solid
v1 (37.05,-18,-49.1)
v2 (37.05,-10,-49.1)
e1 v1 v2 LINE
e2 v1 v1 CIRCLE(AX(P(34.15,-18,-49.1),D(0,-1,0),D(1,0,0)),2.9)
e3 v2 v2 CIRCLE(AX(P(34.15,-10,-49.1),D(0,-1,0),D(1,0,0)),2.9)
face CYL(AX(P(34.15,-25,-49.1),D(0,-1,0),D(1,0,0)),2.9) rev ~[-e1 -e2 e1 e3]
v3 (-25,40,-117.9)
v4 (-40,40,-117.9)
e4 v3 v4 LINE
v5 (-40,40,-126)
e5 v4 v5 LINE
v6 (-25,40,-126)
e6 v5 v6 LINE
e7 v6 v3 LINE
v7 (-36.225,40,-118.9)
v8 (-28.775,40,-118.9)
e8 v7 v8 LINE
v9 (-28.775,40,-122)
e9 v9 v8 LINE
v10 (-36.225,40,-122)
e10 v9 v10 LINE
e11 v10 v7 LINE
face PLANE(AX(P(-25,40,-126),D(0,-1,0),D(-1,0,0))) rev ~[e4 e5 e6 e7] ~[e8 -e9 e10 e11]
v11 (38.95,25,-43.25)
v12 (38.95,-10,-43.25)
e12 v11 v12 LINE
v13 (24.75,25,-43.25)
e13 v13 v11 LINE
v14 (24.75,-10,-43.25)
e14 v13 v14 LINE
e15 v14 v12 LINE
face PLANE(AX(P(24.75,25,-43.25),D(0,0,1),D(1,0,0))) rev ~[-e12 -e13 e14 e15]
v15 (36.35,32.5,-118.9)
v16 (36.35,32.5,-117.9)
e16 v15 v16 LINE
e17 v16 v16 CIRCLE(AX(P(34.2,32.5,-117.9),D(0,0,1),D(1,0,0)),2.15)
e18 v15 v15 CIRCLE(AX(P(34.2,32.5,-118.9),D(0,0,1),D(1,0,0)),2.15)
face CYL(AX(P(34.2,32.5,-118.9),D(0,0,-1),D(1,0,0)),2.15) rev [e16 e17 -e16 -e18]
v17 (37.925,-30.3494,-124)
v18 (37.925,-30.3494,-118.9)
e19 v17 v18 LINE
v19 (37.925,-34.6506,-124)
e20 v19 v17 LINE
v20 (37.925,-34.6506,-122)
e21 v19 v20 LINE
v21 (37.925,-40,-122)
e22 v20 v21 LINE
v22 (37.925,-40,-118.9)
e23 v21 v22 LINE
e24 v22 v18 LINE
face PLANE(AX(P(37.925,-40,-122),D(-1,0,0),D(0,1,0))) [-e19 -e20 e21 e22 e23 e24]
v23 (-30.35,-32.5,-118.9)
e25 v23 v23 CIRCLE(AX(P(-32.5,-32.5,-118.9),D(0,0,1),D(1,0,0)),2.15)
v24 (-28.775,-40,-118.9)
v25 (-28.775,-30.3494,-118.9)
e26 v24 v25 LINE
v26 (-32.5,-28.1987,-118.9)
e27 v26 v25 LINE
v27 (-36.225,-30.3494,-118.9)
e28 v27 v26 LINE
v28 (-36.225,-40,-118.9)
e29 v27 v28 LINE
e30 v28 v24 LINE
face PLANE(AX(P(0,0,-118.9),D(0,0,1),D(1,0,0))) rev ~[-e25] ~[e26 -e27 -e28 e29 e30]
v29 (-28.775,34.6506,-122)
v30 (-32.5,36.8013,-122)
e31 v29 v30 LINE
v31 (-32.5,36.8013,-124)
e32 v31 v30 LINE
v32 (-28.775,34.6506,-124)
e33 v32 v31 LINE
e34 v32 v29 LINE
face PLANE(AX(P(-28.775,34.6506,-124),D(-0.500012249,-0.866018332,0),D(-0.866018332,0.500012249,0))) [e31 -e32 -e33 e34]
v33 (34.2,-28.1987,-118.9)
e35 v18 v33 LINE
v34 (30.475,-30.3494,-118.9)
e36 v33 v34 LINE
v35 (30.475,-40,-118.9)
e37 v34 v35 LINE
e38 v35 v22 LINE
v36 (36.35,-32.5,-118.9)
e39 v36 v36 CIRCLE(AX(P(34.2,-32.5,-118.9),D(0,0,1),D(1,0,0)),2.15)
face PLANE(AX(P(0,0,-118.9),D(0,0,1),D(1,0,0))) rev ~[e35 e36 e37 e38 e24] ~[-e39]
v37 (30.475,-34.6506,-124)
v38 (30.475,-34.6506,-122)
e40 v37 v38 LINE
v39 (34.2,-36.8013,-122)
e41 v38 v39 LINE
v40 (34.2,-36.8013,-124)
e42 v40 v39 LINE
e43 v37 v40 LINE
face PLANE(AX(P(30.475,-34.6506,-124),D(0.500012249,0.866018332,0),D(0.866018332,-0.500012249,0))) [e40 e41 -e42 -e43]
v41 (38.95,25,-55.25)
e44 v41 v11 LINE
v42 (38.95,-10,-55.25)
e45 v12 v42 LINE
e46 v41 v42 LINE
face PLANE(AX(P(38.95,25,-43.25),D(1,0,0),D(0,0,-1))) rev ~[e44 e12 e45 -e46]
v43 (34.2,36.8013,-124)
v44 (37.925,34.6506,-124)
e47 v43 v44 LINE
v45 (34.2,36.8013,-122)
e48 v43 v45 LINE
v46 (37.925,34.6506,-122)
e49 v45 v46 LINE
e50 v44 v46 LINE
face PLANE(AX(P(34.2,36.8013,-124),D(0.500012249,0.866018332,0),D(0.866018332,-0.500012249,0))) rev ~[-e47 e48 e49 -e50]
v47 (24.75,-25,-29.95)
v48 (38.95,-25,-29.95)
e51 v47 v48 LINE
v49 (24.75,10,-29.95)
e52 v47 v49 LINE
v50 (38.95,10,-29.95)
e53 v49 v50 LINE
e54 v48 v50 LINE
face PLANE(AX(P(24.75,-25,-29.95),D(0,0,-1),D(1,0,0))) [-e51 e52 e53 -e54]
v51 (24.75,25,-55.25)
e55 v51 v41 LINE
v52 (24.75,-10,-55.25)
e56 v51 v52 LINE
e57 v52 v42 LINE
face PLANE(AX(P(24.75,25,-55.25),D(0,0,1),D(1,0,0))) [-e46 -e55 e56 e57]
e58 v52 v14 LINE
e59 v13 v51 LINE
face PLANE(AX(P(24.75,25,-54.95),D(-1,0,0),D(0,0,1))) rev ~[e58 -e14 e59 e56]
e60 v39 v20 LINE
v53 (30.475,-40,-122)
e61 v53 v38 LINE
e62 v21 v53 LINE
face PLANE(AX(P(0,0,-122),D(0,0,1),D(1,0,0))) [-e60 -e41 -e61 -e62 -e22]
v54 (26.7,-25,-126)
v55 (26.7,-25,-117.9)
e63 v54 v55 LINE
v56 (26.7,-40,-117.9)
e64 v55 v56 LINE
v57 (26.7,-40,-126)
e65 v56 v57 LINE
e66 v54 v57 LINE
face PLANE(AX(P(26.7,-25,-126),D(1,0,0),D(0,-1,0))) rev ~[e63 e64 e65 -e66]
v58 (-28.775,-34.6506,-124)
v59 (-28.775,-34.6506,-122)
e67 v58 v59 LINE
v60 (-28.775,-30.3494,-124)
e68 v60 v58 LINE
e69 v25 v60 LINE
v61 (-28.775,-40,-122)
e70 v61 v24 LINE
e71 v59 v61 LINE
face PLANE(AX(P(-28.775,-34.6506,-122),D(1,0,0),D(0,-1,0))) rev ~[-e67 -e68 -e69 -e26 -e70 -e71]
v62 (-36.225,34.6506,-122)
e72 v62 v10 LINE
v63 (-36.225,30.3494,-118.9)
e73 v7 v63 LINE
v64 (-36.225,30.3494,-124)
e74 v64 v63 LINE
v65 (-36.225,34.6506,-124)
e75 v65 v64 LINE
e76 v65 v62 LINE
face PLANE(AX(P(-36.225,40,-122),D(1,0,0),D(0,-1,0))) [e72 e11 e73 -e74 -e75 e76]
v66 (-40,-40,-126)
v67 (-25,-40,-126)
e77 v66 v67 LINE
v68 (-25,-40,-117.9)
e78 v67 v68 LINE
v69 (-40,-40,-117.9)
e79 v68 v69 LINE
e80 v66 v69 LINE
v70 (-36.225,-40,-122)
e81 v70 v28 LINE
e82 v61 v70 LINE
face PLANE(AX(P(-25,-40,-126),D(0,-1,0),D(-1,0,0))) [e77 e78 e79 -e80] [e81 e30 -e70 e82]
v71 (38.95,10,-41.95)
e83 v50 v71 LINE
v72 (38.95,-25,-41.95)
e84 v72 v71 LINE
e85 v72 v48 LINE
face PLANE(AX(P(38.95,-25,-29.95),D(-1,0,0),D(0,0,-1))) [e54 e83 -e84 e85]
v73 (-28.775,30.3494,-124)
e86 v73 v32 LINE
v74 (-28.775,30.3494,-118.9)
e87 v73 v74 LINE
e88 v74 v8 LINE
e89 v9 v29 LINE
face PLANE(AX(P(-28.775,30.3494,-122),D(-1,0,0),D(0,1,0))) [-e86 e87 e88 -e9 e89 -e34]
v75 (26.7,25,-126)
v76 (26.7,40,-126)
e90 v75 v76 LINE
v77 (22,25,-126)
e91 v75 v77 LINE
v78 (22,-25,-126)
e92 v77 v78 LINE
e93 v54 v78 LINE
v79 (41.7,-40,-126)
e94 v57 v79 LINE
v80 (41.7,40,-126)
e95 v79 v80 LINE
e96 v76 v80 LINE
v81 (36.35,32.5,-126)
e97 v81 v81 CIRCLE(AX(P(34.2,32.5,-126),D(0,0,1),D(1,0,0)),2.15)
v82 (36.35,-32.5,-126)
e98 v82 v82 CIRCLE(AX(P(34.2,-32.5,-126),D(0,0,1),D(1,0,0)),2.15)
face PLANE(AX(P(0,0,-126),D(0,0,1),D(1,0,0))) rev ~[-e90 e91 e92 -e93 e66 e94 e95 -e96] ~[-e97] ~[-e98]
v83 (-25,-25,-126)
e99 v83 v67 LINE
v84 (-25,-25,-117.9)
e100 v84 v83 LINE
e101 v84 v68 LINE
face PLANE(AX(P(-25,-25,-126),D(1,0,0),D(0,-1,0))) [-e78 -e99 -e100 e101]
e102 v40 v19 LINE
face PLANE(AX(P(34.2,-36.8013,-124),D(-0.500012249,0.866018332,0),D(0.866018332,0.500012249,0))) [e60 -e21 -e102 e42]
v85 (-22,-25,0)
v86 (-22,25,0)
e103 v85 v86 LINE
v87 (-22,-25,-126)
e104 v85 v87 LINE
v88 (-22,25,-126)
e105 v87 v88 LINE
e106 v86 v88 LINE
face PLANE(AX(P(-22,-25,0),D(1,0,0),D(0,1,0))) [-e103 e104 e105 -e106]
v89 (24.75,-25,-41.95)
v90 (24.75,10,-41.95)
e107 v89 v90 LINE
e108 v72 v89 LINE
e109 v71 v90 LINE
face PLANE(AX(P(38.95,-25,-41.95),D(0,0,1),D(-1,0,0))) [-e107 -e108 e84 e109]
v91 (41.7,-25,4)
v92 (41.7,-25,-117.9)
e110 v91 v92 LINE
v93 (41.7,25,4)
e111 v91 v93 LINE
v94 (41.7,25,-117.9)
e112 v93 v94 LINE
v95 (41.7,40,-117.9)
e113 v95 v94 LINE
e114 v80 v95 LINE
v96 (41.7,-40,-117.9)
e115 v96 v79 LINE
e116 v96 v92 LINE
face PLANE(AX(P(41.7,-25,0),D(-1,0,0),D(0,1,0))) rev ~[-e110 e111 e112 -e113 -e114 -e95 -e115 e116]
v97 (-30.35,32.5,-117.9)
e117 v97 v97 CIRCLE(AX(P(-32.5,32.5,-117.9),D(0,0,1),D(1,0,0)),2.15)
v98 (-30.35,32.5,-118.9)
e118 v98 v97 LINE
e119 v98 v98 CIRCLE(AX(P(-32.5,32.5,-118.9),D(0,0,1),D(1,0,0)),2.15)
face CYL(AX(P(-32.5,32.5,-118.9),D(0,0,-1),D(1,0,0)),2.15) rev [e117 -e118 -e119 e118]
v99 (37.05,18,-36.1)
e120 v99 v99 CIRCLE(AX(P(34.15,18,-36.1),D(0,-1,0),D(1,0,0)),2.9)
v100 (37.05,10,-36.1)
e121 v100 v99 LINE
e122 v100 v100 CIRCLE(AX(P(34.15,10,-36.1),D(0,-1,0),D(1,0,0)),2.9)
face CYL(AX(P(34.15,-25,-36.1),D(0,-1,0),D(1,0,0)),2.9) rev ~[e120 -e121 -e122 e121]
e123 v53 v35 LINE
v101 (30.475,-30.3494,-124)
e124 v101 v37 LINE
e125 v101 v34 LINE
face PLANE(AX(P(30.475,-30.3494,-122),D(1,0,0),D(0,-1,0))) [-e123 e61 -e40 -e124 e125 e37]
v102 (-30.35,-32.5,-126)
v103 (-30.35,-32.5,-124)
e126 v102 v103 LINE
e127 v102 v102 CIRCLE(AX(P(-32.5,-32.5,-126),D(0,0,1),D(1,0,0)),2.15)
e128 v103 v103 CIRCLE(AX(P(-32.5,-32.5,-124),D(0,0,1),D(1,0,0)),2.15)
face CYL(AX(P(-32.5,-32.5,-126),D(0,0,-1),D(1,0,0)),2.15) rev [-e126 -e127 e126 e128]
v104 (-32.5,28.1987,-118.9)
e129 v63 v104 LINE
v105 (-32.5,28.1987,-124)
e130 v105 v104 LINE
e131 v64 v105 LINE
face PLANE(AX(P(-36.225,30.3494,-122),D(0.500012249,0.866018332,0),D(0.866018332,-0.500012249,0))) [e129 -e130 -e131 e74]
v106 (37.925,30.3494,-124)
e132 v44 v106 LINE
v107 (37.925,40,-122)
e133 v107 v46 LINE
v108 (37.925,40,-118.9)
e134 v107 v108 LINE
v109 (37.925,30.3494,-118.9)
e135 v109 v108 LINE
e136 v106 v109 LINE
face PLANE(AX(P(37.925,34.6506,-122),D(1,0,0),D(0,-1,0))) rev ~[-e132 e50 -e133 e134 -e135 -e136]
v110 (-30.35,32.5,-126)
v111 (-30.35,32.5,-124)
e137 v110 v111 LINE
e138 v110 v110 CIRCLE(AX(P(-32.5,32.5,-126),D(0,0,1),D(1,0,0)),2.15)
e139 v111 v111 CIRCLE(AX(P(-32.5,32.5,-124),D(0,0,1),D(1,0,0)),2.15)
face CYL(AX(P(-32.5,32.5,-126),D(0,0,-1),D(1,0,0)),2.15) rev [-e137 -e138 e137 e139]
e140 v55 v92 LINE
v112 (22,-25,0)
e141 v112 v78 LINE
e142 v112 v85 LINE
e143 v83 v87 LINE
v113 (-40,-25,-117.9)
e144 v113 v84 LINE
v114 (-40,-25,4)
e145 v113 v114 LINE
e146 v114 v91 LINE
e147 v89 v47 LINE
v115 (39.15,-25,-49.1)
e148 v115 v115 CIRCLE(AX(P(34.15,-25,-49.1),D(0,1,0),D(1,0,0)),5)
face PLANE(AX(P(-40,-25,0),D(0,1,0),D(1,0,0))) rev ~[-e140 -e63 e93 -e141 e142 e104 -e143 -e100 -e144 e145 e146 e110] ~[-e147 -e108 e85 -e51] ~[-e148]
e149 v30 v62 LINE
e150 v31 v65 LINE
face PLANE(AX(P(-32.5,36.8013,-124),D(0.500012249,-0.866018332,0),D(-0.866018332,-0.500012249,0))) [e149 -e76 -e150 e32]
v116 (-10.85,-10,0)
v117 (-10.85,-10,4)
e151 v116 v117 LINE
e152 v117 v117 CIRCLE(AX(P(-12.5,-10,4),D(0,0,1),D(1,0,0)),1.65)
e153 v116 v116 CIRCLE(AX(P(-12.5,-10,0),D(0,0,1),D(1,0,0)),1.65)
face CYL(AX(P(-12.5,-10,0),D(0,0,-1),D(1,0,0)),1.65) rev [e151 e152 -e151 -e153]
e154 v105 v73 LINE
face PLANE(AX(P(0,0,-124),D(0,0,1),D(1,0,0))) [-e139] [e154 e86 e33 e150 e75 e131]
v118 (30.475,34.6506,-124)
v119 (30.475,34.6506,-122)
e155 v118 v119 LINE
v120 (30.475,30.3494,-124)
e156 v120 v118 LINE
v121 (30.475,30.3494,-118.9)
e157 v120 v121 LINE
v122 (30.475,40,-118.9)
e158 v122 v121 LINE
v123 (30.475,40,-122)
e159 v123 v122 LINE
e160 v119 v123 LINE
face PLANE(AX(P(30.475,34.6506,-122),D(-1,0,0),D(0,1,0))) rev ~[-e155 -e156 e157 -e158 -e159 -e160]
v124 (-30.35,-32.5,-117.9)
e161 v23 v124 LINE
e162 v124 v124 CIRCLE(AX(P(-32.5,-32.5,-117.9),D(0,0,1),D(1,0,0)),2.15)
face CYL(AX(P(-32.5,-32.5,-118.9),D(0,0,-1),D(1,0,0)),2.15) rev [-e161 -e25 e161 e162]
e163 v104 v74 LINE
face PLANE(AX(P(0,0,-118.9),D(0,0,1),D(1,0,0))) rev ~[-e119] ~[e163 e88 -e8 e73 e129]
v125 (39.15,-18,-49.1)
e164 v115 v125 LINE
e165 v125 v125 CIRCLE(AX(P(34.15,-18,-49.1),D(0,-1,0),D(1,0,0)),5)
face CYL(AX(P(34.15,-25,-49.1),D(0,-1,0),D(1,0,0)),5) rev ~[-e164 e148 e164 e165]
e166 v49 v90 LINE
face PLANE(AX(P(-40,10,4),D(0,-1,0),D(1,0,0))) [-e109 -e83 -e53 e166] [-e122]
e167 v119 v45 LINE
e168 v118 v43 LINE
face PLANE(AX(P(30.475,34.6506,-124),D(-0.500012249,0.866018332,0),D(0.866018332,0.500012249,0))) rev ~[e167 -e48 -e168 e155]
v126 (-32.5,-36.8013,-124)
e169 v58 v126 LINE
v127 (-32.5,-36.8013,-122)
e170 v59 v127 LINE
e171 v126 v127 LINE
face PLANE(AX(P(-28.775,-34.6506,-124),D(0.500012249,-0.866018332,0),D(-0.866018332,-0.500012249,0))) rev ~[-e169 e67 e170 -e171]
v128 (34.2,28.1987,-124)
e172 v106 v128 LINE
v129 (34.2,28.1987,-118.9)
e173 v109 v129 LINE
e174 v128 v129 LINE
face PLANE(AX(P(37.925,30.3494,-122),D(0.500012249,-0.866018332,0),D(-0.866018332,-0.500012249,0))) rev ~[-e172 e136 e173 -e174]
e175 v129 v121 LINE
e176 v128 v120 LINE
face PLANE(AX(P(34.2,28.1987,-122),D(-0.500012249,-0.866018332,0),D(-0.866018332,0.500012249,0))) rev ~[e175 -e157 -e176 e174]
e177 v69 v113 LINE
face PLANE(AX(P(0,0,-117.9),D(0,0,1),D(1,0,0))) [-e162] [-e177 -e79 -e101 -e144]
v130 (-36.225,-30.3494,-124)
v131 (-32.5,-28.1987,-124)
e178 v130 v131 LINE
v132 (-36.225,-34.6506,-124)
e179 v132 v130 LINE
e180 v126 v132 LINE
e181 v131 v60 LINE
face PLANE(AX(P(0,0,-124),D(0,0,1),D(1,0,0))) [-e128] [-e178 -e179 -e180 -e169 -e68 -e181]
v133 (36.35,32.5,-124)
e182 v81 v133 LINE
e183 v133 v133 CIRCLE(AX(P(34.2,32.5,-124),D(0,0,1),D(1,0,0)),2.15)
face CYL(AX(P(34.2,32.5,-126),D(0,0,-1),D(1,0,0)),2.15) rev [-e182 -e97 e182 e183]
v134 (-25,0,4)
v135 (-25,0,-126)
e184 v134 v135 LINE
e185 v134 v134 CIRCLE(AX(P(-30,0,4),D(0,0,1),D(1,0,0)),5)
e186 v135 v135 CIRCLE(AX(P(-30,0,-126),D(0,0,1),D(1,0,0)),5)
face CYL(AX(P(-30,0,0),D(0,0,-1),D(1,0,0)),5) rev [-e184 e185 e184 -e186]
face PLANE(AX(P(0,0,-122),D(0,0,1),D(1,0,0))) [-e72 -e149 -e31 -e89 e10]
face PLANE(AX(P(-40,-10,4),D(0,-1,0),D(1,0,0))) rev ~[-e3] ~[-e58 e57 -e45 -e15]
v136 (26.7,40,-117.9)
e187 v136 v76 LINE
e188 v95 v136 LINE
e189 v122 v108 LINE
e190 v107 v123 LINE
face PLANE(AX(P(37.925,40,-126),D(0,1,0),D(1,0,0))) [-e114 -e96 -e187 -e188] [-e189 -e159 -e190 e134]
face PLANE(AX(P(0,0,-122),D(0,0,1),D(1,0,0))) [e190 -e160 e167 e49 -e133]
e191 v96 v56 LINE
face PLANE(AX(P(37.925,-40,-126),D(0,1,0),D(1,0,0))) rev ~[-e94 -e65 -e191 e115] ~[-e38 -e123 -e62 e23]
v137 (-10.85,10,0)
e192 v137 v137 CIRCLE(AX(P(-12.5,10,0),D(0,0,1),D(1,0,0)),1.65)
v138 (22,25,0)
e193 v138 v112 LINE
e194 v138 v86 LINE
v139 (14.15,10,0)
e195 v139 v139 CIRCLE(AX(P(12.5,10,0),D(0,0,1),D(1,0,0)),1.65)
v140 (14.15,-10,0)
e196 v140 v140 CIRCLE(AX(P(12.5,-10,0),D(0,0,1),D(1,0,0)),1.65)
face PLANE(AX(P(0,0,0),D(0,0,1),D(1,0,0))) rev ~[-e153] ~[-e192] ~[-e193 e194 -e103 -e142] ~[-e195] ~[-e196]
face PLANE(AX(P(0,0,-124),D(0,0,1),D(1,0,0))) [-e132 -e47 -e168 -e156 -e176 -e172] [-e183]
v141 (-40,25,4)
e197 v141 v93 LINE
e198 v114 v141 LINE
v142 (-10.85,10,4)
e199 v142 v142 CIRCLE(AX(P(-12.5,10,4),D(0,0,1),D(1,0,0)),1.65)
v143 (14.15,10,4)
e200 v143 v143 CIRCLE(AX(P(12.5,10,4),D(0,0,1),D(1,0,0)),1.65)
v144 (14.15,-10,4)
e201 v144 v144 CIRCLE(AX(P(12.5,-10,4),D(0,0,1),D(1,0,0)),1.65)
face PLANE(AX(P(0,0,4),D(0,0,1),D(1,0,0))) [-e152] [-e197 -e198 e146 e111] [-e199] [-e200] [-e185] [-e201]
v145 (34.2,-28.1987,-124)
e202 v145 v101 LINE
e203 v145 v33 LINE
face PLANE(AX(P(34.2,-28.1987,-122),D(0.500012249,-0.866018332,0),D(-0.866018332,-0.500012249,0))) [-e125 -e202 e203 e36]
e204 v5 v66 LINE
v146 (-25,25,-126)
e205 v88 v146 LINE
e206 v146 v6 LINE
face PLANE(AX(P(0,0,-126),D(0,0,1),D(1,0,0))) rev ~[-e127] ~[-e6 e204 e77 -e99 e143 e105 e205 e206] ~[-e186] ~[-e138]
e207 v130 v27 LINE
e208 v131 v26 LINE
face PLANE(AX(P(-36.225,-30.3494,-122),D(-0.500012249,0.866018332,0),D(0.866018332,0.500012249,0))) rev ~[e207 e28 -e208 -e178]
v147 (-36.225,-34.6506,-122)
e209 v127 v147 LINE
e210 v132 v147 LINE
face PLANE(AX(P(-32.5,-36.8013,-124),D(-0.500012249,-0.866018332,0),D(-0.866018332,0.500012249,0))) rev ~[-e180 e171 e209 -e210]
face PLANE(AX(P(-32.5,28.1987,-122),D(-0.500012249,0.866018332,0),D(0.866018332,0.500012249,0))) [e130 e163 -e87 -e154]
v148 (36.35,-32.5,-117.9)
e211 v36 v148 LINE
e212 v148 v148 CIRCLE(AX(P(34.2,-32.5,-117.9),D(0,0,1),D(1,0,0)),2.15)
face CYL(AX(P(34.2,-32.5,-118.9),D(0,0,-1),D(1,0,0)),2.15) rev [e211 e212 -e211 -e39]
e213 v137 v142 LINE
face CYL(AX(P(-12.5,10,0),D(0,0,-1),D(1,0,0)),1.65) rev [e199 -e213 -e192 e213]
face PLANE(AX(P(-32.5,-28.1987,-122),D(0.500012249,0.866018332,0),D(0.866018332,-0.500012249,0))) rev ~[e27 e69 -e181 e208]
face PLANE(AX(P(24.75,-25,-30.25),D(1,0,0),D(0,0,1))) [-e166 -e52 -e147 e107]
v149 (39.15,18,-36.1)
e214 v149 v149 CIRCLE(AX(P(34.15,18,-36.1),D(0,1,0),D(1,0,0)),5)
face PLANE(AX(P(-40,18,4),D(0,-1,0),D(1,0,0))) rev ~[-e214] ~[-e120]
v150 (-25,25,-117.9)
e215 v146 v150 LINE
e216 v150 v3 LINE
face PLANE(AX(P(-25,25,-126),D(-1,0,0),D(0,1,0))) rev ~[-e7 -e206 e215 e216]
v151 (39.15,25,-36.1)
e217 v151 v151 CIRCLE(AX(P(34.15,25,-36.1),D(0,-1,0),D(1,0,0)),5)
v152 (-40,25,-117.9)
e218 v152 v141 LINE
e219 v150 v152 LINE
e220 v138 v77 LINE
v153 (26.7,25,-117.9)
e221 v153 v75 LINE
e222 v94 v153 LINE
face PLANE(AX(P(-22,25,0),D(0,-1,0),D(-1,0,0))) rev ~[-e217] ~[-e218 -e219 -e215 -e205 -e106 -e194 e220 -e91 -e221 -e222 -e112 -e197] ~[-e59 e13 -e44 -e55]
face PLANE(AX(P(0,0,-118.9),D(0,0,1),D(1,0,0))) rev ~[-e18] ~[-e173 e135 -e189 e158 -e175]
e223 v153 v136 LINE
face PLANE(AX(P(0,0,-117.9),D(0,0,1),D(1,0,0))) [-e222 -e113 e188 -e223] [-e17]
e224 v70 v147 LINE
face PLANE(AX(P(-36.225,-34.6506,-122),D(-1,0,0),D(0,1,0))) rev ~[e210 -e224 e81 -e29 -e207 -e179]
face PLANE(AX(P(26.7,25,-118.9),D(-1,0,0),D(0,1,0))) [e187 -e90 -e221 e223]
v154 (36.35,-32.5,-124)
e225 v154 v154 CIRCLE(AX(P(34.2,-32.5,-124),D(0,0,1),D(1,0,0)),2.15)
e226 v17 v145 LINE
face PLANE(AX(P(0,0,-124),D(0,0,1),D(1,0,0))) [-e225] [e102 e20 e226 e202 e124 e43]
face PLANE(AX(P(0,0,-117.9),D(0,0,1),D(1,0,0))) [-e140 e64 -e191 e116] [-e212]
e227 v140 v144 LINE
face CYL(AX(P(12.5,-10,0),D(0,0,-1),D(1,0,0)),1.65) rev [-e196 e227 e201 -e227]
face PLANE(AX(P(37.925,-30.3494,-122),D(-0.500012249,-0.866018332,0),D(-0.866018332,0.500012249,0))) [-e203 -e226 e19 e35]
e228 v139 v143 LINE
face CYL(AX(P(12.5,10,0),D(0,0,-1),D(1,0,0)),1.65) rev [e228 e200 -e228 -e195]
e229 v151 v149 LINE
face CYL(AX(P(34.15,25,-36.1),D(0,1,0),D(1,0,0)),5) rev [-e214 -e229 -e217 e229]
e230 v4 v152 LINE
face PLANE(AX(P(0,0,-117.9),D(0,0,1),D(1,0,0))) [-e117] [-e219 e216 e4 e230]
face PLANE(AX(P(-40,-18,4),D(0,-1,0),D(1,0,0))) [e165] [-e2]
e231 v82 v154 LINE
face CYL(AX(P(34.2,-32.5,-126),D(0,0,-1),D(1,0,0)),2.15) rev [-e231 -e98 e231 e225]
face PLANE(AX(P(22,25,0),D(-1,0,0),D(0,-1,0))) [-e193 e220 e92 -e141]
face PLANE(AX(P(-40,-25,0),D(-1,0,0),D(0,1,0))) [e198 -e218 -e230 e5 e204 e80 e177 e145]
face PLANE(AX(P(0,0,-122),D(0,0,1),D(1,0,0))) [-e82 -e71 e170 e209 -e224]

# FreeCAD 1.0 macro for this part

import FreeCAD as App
import Part
import Sketcher
from FreeCAD import Vector
Q = App.Units.Quantity


def add_polygon(sketch, points):
    """Adds a closed chain of lines whose ends are joined by coincident constraints."""
    first, n = sketch.GeometryCount, len(points)
    for a, b in zip(points, points[1:] + points[:1]):
        sketch.addGeometry(Part.LineSegment(App.Vector(*a, 0), App.Vector(*b, 0)), False)
    for i in range(n):
        sketch.addConstraint(Sketcher.Constraint("Coincident", first + i, 2, first + (i + 1) % n, 1))

doc = App.newDocument("Part")
body = doc.addObject("PartDesign::Body", "Body")

# Sketch on XY plane
sketch1 = body.newObject("Sketcher::SketchObject", "Sketch")
sketch1.AttachmentSupport = (doc.getObject("XY_Plane"), [""])
sketch1.MapMode = "FlatFace"
add_polygon(sketch1, [(-40, 25), (-40, -25), (41.7, -25), (41.7, 25)])  # lines 0-3
sketch1.addGeometry(Part.Circle(Vector(-30, 0, 0), Vector(0, 0, 1), 5), False)  # 4
sketch1.addGeometry(Part.Circle(Vector(12.5, 10, 0), Vector(0, 0, 1), 1.65), False)  # 5
sketch1.addGeometry(Part.Circle(Vector(-12.5, -10, 0), Vector(0, 0, 1), 1.65), False)  # 6
sketch1.addGeometry(Part.Circle(Vector(12.5, -10, 0), Vector(0, 0, 1), 1.65), False)  # 7
sketch1.addGeometry(Part.Circle(Vector(-12.5, 10, 0), Vector(0, 0, 1), 1.65), False)  # 8
sketch1.addConstraint(Sketcher.Constraint("Vertical", 0))
sketch1.addConstraint(Sketcher.Constraint("Horizontal", 1))
sketch1.addConstraint(Sketcher.Constraint("Vertical", 2))
sketch1.addConstraint(Sketcher.Constraint("Horizontal", 3))
sketch1.addConstraint(Sketcher.Constraint("Equal", 5, 6))
sketch1.addConstraint(Sketcher.Constraint("Equal", 6, 7))
sketch1.addConstraint(Sketcher.Constraint("Equal", 7, 8))
sketch1.addConstraint(Sketcher.Constraint("Symmetric", 5, 3, 6, 3, -1, 1))
sketch1.addConstraint(Sketcher.Constraint("Symmetric", 7, 3, 8, 3, -1, 1))
sketch1.addConstraint(Sketcher.Constraint("Symmetric", 6, 3, 7, 3, -2))
sketch1.addConstraint(Sketcher.Constraint("PointOnObject", 4, 3, -1))
sketch1.addConstraint(Sketcher.Constraint("Diameter", 4, Q("10 mm")))
sketch1.addConstraint(Sketcher.Constraint("Diameter", 5, Q("3.3 mm")))
sketch1.addConstraint(Sketcher.Constraint("DistanceY", 0, 2, 0, 1, Q("50 mm")))
sketch1.addConstraint(Sketcher.Constraint("DistanceX", 4, 3, -1, 1, Q("30 mm")))
sketch1.addConstraint(Sketcher.Constraint("DistanceY", -1, 1, 5, 3, Q("10 mm")))
sketch1.addConstraint(Sketcher.Constraint("DistanceX", 0, 2, 4, 3, Q("10 mm")))
sketch1.addConstraint(Sketcher.Constraint("DistanceX", -1, 1, 5, 3, Q("12.5 mm")))
sketch1.addConstraint(Sketcher.Constraint("DistanceX", 1, 1, 1, 2, Q("81.7 mm")))
sketch1.addConstraint(Sketcher.Constraint("DistanceY", 0, 2, -1, 1, Q("25 mm")))
pad1 = body.newObject("PartDesign::Pad", "Pad")
pad1.Profile = sketch1
pad1.Length = 4

# Sketch on XY plane
sketch2 = body.newObject("Sketcher::SketchObject", "Sketch001")
sketch2.AttachmentSupport = (doc.getObject("XY_Plane"), [""])
sketch2.MapMode = "FlatFace"
add_polygon(sketch2, [(-22, 25), (-40, 25), (-40, -25), (-22, -25)])  # lines 0-3
sketch2.addGeometry(Part.Circle(Vector(-30, 0, 0), Vector(0, 0, 1), 5), False)  # 4
add_polygon(sketch2, [(41.7, 25), (22, 25), (22, -25), (41.7, -25)])  # lines 5-8
sketch2.addConstraint(Sketcher.Constraint("Horizontal", 0))
sketch2.addConstraint(Sketcher.Constraint("Vertical", 1))
sketch2.addConstraint(Sketcher.Constraint("Horizontal", 2))
sketch2.addConstraint(Sketcher.Constraint("Vertical", 3))
sketch2.addConstraint(Sketcher.Constraint("Horizontal", 5))
sketch2.addConstraint(Sketcher.Constraint("Vertical", 6))
sketch2.addConstraint(Sketcher.Constraint("Horizontal", 7))
sketch2.addConstraint(Sketcher.Constraint("Vertical", 8))
sketch2.addConstraint(Sketcher.Constraint("Symmetric", 2, 2, 5, 2, -1, 1))
sketch2.addConstraint(Sketcher.Constraint("PointOnObject", 4, 3, -1))
sketch2.addConstraint(Sketcher.Constraint("Horizontal", 3, 2, 5, 2))
sketch2.addConstraint(Sketcher.Constraint("Horizontal", 2, 2, 6, 2))
sketch2.addConstraint(Sketcher.Constraint("Diameter", 4, Q("10 mm")))
sketch2.addConstraint(Sketcher.Constraint("DistanceY", 1, 2, 1, 1, Q("50 mm")))
sketch2.addConstraint(Sketcher.Constraint("DistanceX", 4, 3, -1, 1, Q("30 mm")))
sketch2.addConstraint(Sketcher.Constraint("DistanceX", 0, 2, 4, 3, Q("10 mm")))
sketch2.addConstraint(Sketcher.Constraint("DistanceX", 0, 2, 0, 1, Q("18 mm")))
sketch2.addConstraint(Sketcher.Constraint("DistanceX", 5, 2, 5, 1, Q("19.7 mm")))
pad2 = body.newObject("PartDesign::Pad", "Pad001")
pad2.Profile = sketch2
pad2.Length = 126
pad2.Reversed = True

# Sketch on XZ plane
sketch3 = body.newObject("Sketcher::SketchObject", "Sketch002")
sketch3.AttachmentSupport = (doc.getObject("XZ_Plane"), [""])
sketch3.MapMode = "FlatFace"
sketch3.AttachmentOffset = App.Placement(Vector(0, 0, 25), App.Rotation())
sketch3.addGeometry(Part.Circle(Vector(34.15, -49.1, 0), Vector(0, 0, 1), 2.9), False)
sketch3.addGeometry(Part.Circle(Vector(34.15, -36.1, 0), Vector(0, 0, 1), 2.9), False)
sketch3.addConstraint(Sketcher.Constraint("Equal", 0, 1))
sketch3.addConstraint(Sketcher.Constraint("Vertical", 0, 3, 1, 3))
sketch3.addConstraint(Sketcher.Constraint("Diameter", 0, Q("5.8 mm")))
sketch3.addConstraint(Sketcher.Constraint("DistanceY", 0, 3, 1, 3, Q("13 mm")))
sketch3.addConstraint(Sketcher.Constraint("DistanceY", 0, 3, -1, 1, Q("49.1 mm")))
sketch3.addConstraint(Sketcher.Constraint("DistanceX", -1, 1, 0, 3, Q("34.15 mm")))
pocket1 = body.newObject("PartDesign::Pocket", "Pocket")
pocket1.Profile = sketch3
pocket1.Length = 50

# Sketch on XZ plane
sketch4 = body.newObject("Sketcher::SketchObject", "Sketch003")
sketch4.AttachmentSupport = (doc.getObject("XZ_Plane"), [""])
sketch4.MapMode = "FlatFace"
sketch4.AttachmentOffset = App.Placement(Vector(0, 0, -25), App.Rotation())
add_polygon(sketch4, [(38.95, -43.25), (24.75, -43.25), (24.75, -55.25), (38.95, -55.25)])  # lines 0-3
sketch4.addGeometry(Part.Circle(Vector(34.15, -49.1, 0), Vector(0, 0, 1), 2.9), False)  # 4
sketch4.addConstraint(Sketcher.Constraint("Horizontal", 0))
sketch4.addConstraint(Sketcher.Constraint("Vertical", 1))
sketch4.addConstraint(Sketcher.Constraint("Horizontal", 2))
sketch4.addConstraint(Sketcher.Constraint("Vertical", 3))
sketch4.addConstraint(Sketcher.Constraint("Diameter", 4, Q("5.8 mm")))
sketch4.addConstraint(Sketcher.Constraint("DistanceX", 0, 2, 0, 1, Q("14.2 mm")))
sketch4.addConstraint(Sketcher.Constraint("DistanceX", 4, 3, 2, 2, Q("4.8 mm")))
sketch4.addConstraint(Sketcher.Constraint("DistanceY", 1, 2, 1, 1, Q("12 mm")))
sketch4.addConstraint(Sketcher.Constraint("DistanceY", 4, 3, -1, 1, Q("49.1 mm")))
sketch4.addConstraint(Sketcher.Constraint("DistanceX", -1, 1, 4, 3, Q("34.15 mm")))
sketch4.addConstraint(Sketcher.Constraint("DistanceY", 0, 2, -1, 1, Q("43.25 mm")))
pocket2 = body.newObject("PartDesign::Pocket", "Pocket001")
pocket2.Profile = sketch4
pocket2.Length = 35
pocket2.Reversed = True

# Sketch on XZ plane
sketch5 = body.newObject("Sketcher::SketchObject", "Sketch004")
sketch5.AttachmentSupport = (doc.getObject("XZ_Plane"), [""])
sketch5.MapMode = "FlatFace"
sketch5.AttachmentOffset = App.Placement(Vector(0, 0, 25), App.Rotation())
add_polygon(sketch5, [(24.75, -29.95), (24.75, -41.95), (38.95, -41.95), (38.95, -29.95)])  # lines 0-3
sketch5.addGeometry(Part.Circle(Vector(34.15, -36.1, 0), Vector(0, 0, 1), 2.9), False)  # 4
sketch5.addConstraint(Sketcher.Constraint("Vertical", 0))
sketch5.addConstraint(Sketcher.Constraint("Horizontal", 1))
sketch5.addConstraint(Sketcher.Constraint("Vertical", 2))
sketch5.addConstraint(Sketcher.Constraint("Horizontal", 3))
sketch5.addConstraint(Sketcher.Constraint("Diameter", 4, Q("5.8 mm")))
sketch5.addConstraint(Sketcher.Constraint("DistanceX", 1, 1, 1, 2, Q("14.2 mm")))
sketch5.addConstraint(Sketcher.Constraint("DistanceX", 4, 3, 1, 2, Q("4.8 mm")))
sketch5.addConstraint(Sketcher.Constraint("DistanceY", 0, 2, 0, 1, Q("12 mm")))
sketch5.addConstraint(Sketcher.Constraint("DistanceY", 4, 3, -1, 1, Q("36.1 mm")))
sketch5.addConstraint(Sketcher.Constraint("DistanceX", -1, 1, 4, 3, Q("34.15 mm")))
sketch5.addConstraint(Sketcher.Constraint("DistanceY", 0, 2, -1, 1, Q("41.95 mm")))
pocket3 = body.newObject("PartDesign::Pocket", "Pocket002")
pocket3.Profile = sketch5
pocket3.Length = 35

# Sketch on XZ plane
sketch6 = body.newObject("Sketcher::SketchObject", "Sketch005")
sketch6.AttachmentSupport = (doc.getObject("XZ_Plane"), [""])
sketch6.MapMode = "FlatFace"
sketch6.AttachmentOffset = App.Placement(Vector(0, 0, 25), App.Rotation())
sketch6.addGeometry(Part.Circle(Vector(34.15, -49.1, 0), Vector(0, 0, 1), 5), False)
sketch6.addGeometry(Part.Circle(Vector(34.15, -49.1, 0), Vector(0, 0, 1), 2.9), False)
sketch6.addConstraint(Sketcher.Constraint("Coincident", 1, 3, 0, 3))
sketch6.addConstraint(Sketcher.Constraint("Diameter", 0, Q("10 mm")))
sketch6.addConstraint(Sketcher.Constraint("Diameter", 1, Q("5.8 mm")))
sketch6.addConstraint(Sketcher.Constraint("DistanceY", 0, 3, -1, 1, Q("49.1 mm")))
sketch6.addConstraint(Sketcher.Constraint("DistanceX", -1, 1, 0, 3, Q("34.15 mm")))
pocket4 = body.newObject("PartDesign::Pocket", "Pocket003")
pocket4.Profile = sketch6
pocket4.Length = 7

# Sketch on XZ plane
sketch7 = body.newObject("Sketcher::SketchObject", "Sketch006")
sketch7.AttachmentSupport = (doc.getObject("XZ_Plane"), [""])
sketch7.MapMode = "FlatFace"
sketch7.AttachmentOffset = App.Placement(Vector(0, 0, -25), App.Rotation())
sketch7.addGeometry(Part.Circle(Vector(34.15, -36.1, 0), Vector(0, 0, 1), 5), False)
sketch7.addGeometry(Part.Circle(Vector(34.15, -36.1, 0), Vector(0, 0, 1), 2.9), False)
sketch7.addConstraint(Sketcher.Constraint("Coincident", 1, 3, 0, 3))
sketch7.addConstraint(Sketcher.Constraint("Diameter", 0, Q("10 mm")))
sketch7.addConstraint(Sketcher.Constraint("Diameter", 1, Q("5.8 mm")))
sketch7.addConstraint(Sketcher.Constraint("DistanceY", 0, 3, -1, 1, Q("36.1 mm")))
sketch7.addConstraint(Sketcher.Constraint("DistanceX", -1, 1, 0, 3, Q("34.15 mm")))
pocket5 = body.newObject("PartDesign::Pocket", "Pocket004")
pocket5.Profile = sketch7
pocket5.Length = 7
pocket5.Reversed = True

# Sketch on XY plane
sketch8 = body.newObject("Sketcher::SketchObject", "Sketch007")
sketch8.AttachmentSupport = (doc.getObject("XY_Plane"), [""])
sketch8.MapMode = "FlatFace"
sketch8.AttachmentOffset = App.Placement(Vector(0, 0, -126), App.Rotation())
add_polygon(sketch8, [(26.7, 25), (41.7, 25), (41.7, 40), (26.7, 40)])  # lines 0-3
sketch8.addGeometry(Part.Circle(Vector(34.2, 32.5, 0), Vector(0, 0, 1), 2.15), False)  # 4
add_polygon(sketch8, [(41.7, -40), (41.7, -25), (26.7, -25), (26.7, -40)])  # lines 5-8
sketch8.addGeometry(Part.Circle(Vector(34.2, -32.5, 0), Vector(0, 0, 1), 2.15), False)  # 9
add_polygon(sketch8, [(-40, 25), (-25, 25), (-25, 40), (-40, 40)])  # lines 10-13
sketch8.addGeometry(Part.Circle(Vector(-32.5, 32.5, 0), Vector(0, 0, 1), 2.15), False)  # 14
add_polygon(sketch8, [(-25, -40), (-25, -25), (-40, -25), (-40, -40)])  # lines 15-18
sketch8.addGeometry(Part.Circle(Vector(-32.5, -32.5, 0), Vector(0, 0, 1), 2.15), False)  # 19
sketch8.addConstraint(Sketcher.Constraint("Horizontal", 0))
sketch8.addConstraint(Sketcher.Constraint("Vertical", 1))
sketch8.addConstraint(Sketcher.Constraint("Horizontal", 2))
sketch8.addConstraint(Sketcher.Constraint("Vertical", 3))
sketch8.addConstraint(Sketcher.Constraint("Vertical", 5))
sketch8.addConstraint(Sketcher.Constraint("Horizontal", 6))
sketch8.addConstraint(Sketcher.Constraint("Vertical", 7))
sketch8.addConstraint(Sketcher.Constraint("Horizontal", 8))
sketch8.addConstraint(Sketcher.Constraint("Horizontal", 10))
sketch8.addConstraint(Sketcher.Constraint("Vertical", 11))
sketch8.addConstraint(Sketcher.Constraint("Horizontal", 12))
sketch8.addConstraint(Sketcher.Constraint("Vertical", 13))
sketch8.addConstraint(Sketcher.Constraint("Vertical", 15))
sketch8.addConstraint(Sketcher.Constraint("Horizontal", 16))
sketch8.addConstraint(Sketcher.Constraint("Vertical", 17))
sketch8.addConstraint(Sketcher.Constraint("Horizontal", 18))
sketch8.addConstraint(Sketcher.Constraint("Equal", 4, 9))
sketch8.addConstraint(Sketcher.Constraint("Equal", 9, 14))
sketch8.addConstraint(Sketcher.Constraint("Equal", 14, 19))
sketch8.addConstraint(Sketcher.Constraint("Symmetric", 4, 3, 9, 3, -1))
sketch8.addConstraint(Sketcher.Constraint("Symmetric", 14, 3, 19, 3, -1))
sketch8.addConstraint(Sketcher.Constraint("Symmetric", 0, 2, 5, 2, -1))
sketch8.addConstraint(Sketcher.Constraint("Symmetric", 2, 2, 7, 2, -1))
sketch8.addConstraint(Sketcher.Constraint("Symmetric", 10, 2, 15, 2, -1))
sketch8.addConstraint(Sketcher.Constraint("Symmetric", 12, 2, 17, 2, -1))
sketch8.addConstraint(Sketcher.Constraint("Horizontal", 4, 3, 14, 3))
sketch8.addConstraint(Sketcher.Constraint("Horizontal", 3, 2, 10, 2))
sketch8.addConstraint(Sketcher.Constraint("Horizontal", 2, 2, 11, 2))
sketch8.addConstraint(Sketcher.Constraint("Equal", 8, 10))
sketch8.addConstraint(Sketcher.Constraint("Equal", 18, 1))
sketch8.addConstraint(Sketcher.Constraint("Diameter", 4, Q("4.3 mm")))
sketch8.addConstraint(Sketcher.Constraint("DistanceX", 0, 1, 0, 2, Q("15 mm")))
sketch8.addConstraint(Sketcher.Constraint("DistanceY", 9, 3, 4, 3, Q("65 mm")))
sketch8.addConstraint(Sketcher.Constraint("DistanceY", 5, 2, 0, 2, Q("50 mm")))
sketch8.addConstraint(Sketcher.Constraint("DistanceX", 14, 3, 4, 3, Q("66.7 mm")))
sketch8.addConstraint(Sketcher.Constraint("DistanceX", 12, 2, 2, 2, Q("66.7 mm")))
sketch8.addConstraint(Sketcher.Constraint("DistanceX", 10, 2, -1, 1, Q("25 mm")))
sketch8.addConstraint(Sketcher.Constraint("DistanceX", -1, 1, 4, 3, Q("34.2 mm")))
pad3 = body.newObject("PartDesign::Pad", "Pad002")
pad3.Profile = sketch8
pad3.Length = 2

# Sketch on XY plane
sketch9 = body.newObject("Sketcher::SketchObject", "Sketch008")
sketch9.AttachmentSupport = (doc.getObject("XY_Plane"), [""])
sketch9.MapMode = "FlatFace"
sketch9.AttachmentOffset = App.Placement(Vector(0, 0, -124), App.Rotation())
add_polygon(sketch9, [(26.7, 25), (41.7, 25), (41.7, 40), (26.7, 40)])  # lines 0-3
add_polygon(sketch9, [(30.475, 30.3494), (30.475, 34.6506), (34.2, 36.8013), (37.925, 34.6506), (37.925, 30.3494), (34.2, 28.1987)])  # lines 4-9
add_polygon(sketch9, [(41.7, -40), (41.7, -25), (26.7, -25), (26.7, -40)])  # lines 10-13
add_polygon(sketch9, [(37.925, -30.3494), (37.925, -34.6506), (34.2, -36.8013), (30.475, -34.6506), (30.475, -30.3494), (34.2, -28.1987)])  # lines 14-19
add_polygon(sketch9, [(-40, 25), (-25, 25), (-25, 40), (-40, 40)])  # lines 20-23
add_polygon(sketch9, [(-36.225, 30.3494), (-36.225, 34.6506), (-32.5, 36.8013), (-28.775, 34.6506), (-28.775, 30.3494), (-32.5, 28.1987)])  # lines 24-29
add_polygon(sketch9, [(-25, -40), (-25, -25), (-40, -25), (-40, -40)])  # lines 30-33
add_polygon(sketch9, [(-28.775, -30.3494), (-28.775, -34.6506), (-32.5, -36.8013), (-36.225, -34.6506), (-36.225, -30.3494), (-32.5, -28.1987)])  # lines 34-39
sketch9.addConstraint(Sketcher.Constraint("Horizontal", 0))
sketch9.addConstraint(Sketcher.Constraint("Vertical", 1))
sketch9.addConstraint(Sketcher.Constraint("Horizontal", 2))
sketch9.addConstraint(Sketcher.Constraint("Vertical", 3))
sketch9.addConstraint(Sketcher.Constraint("Vertical", 4))
sketch9.addConstraint(Sketcher.Constraint("Vertical", 7))
sketch9.addConstraint(Sketcher.Constraint("Vertical", 10))
sketch9.addConstraint(Sketcher.Constraint("Horizontal", 11))
sketch9.addConstraint(Sketcher.Constraint("Vertical", 12))
sketch9.addConstraint(Sketcher.Constraint("Horizontal", 13))
sketch9.addConstraint(Sketcher.Constraint("Vertical", 14))
sketch9.addConstraint(Sketcher.Constraint("Vertical", 17))
sketch9.addConstraint(Sketcher.Constraint("Horizontal", 20))
sketch9.addConstraint(Sketcher.Constraint("Vertical", 21))
sketch9.addConstraint(Sketcher.Constraint("Horizontal", 22))
sketch9.addConstraint(Sketcher.Constraint("Vertical", 23))
sketch9.addConstraint(Sketcher.Constraint("Vertical", 24))
sketch9.addConstraint(Sketcher.Constraint("Vertical", 27))
sketch9.addConstraint(Sketcher.Constraint("Vertical", 30))
sketch9.addConstraint(Sketcher.Constraint("Horizontal", 31))
sketch9.addConstraint(Sketcher.Constraint("Vertical", 32))
sketch9.addConstraint(Sketcher.Constraint("Horizontal", 33))
sketch9.addConstraint(Sketcher.Constraint("Vertical", 34))
sketch9.addConstraint(Sketcher.Constraint("Vertical", 37))
sketch9.addConstraint(Sketcher.Constraint("Symmetric", 0, 2, 10, 2, -1))
sketch9.addConstraint(Sketcher.Constraint("Symmetric", 2, 2, 12, 2, -1))
sketch9.addConstraint(Sketcher.Constraint("Symmetric", 6, 2, 14, 2, -1))
sketch9.addConstraint(Sketcher.Constraint("Symmetric", 5, 2, 15, 2, -1))
sketch9.addConstraint(Sketcher.Constraint("Symmetric", 4, 2, 16, 2, -1))
sketch9.addConstraint(Sketcher.Constraint("Symmetric", 8, 2, 18, 2, -1))
sketch9.addConstraint(Sketcher.Constraint("Symmetric", 20, 2, 30, 2, -1))
sketch9.addConstraint(Sketcher.Constraint("Symmetric", 22, 2, 32, 2, -1))
sketch9.addConstraint(Sketcher.Constraint("Symmetric", 26, 2, 34, 2, -1))
sketch9.addConstraint(Sketcher.Constraint("Symmetric", 25, 2, 35, 2, -1))
sketch9.addConstraint(Sketcher.Constraint("Symmetric", 24, 2, 36, 2, -1))
sketch9.addConstraint(Sketcher.Constraint("Symmetric", 28, 2, 38, 2, -1))
sketch9.addConstraint(Sketcher.Constraint("Parallel", 5, 8))
sketch9.addConstraint(Sketcher.Constraint("Parallel", 6, 9))
sketch9.addConstraint(Sketcher.Constraint("Parallel", 8, 15))
sketch9.addConstraint(Sketcher.Constraint("Parallel", 15, 18))
sketch9.addConstraint(Sketcher.Constraint("Parallel", 16, 19))
sketch9.addConstraint(Sketcher.Constraint("Parallel", 18, 25))
sketch9.addConstraint(Sketcher.Constraint("Parallel", 19, 26))
sketch9.addConstraint(Sketcher.Constraint("Parallel", 25, 28))
sketch9.addConstraint(Sketcher.Constraint("Parallel", 26, 29))
sketch9.addConstraint(Sketcher.Constraint("Parallel", 35, 38))
sketch9.addConstraint(Sketcher.Constraint("Parallel", 36, 39))
sketch9.addConstraint(Sketcher.Constraint("Horizontal", 4, 2, 6, 2))
sketch9.addConstraint(Sketcher.Constraint("Horizontal", 7, 2, 9, 2))
sketch9.addConstraint(Sketcher.Constraint("Horizontal", 3, 2, 20, 2))
sketch9.addConstraint(Sketcher.Constraint("Horizontal", 2, 2, 21, 2))
sketch9.addConstraint(Sketcher.Constraint("Horizontal", 6, 2, 24, 2))
sketch9.addConstraint(Sketcher.Constraint("Horizontal", 5, 2, 25, 2))
sketch9.addConstraint(Sketcher.Constraint("Horizontal", 24, 2, 26, 2))
sketch9.addConstraint(Sketcher.Constraint("Horizontal", 9, 2, 27, 2))
sketch9.addConstraint(Sketcher.Constraint("Horizontal", 8, 2, 28, 2))
sketch9.addConstraint(Sketcher.Constraint("Equal", 13, 20))
sketch9.addConstraint(Sketcher.Constraint("Equal", 33, 1))
sketch9.addConstraint(Sketcher.Constraint("DistanceX", 0, 1, 0, 2, Q("15 mm")))
sketch9.addConstraint(Sketcher.Constraint("DistanceY", 10, 2, 0, 2, Q("50 mm")))
sketch9.addConstraint(Sketcher.Constraint("DistanceX", 22, 2, 2, 2, Q("66.7 mm")))
sketch9.addConstraint(Sketcher.Constraint("Angle", 5, Q("30.0008 deg")))
sketch9.addConstraint(Sketcher.Constraint("DistanceX", 4, 2, 6, 2, Q("7.45 mm")))
sketch9.addConstraint(Sketcher.Constraint("DistanceX", 20, 2, -1, 1, Q("25 mm")))
sketch9.addConstraint(Sketcher.Constraint("DistanceX", -1, 1, 5, 2, Q("34.2 mm")))
sketch9.addConstraint(Sketcher.Constraint("DistanceX", 25, 2, -1, 1, Q("32.5 mm")))
sketch9.addConstraint(Sketcher.Constraint("DistanceY", 4, 1, 4, 2, Q("4.3012 mm")))
sketch9.addConstraint(Sketcher.Constraint("DistanceY", -1, 1, 4, 2, Q("34.6506 mm")))
pad4 = body.newObject("PartDesign::Pad", "Pad003")
pad4.Profile = sketch9
pad4.Length = 2

# Sketch on XY plane
sketch10 = body.newObject("Sketcher::SketchObject", "Sketch009")
sketch10.AttachmentSupport = (doc.getObject("XY_Plane"), [""])
sketch10.MapMode = "FlatFace"
sketch10.AttachmentOffset = App.Placement(Vector(0, 0, -122), App.Rotation())
add_polygon(sketch10, [(26.7, 25), (41.7, 25), (41.7, 40), (37.925, 40), (37.925, 30.3494), (34.2, 28.1987), (30.475, 30.3494), (30.475, 40), (26.7, 40)])  # lines 0-8
add_polygon(sketch10, [(41.7, -40), (41.7, -25), (26.7, -25), (26.7, -40), (30.475, -40), (30.475, -30.3494), (34.2, -28.1987), (37.925, -30.3494), (37.925, -40)])  # lines 9-17
add_polygon(sketch10, [(-40, 25), (-25, 25), (-25, 40), (-28.775, 40), (-28.775, 30.3494), (-32.5, 28.1987), (-36.225, 30.3494), (-36.225, 40), (-40, 40)])  # lines 18-26
add_polygon(sketch10, [(-25, -40), (-25, -25), (-40, -25), (-40, -40), (-36.225, -40), (-36.225, -30.3494), (-32.5, -28.1987), (-28.775, -30.3494), (-28.775, -40)])  # lines 27-35
sketch10.addConstraint(Sketcher.Constraint("Horizontal", 0))
sketch10.addConstraint(Sketcher.Constraint("Vertical", 1))
sketch10.addConstraint(Sketcher.Constraint("Horizontal", 2))
sketch10.addConstraint(Sketcher.Constraint("Vertical", 3))
sketch10.addConstraint(Sketcher.Constraint("Vertical", 6))
sketch10.addConstraint(Sketcher.Constraint("Horizontal", 7))
sketch10.addConstraint(Sketcher.Constraint("Vertical", 8))
sketch10.addConstraint(Sketcher.Constraint("Vertical", 9))
sketch10.addConstraint(Sketcher.Constraint("Horizontal", 10))
sketch10.addConstraint(Sketcher.Constraint("Vertical", 11))
sketch10.addConstraint(Sketcher.Constraint("Horizontal", 12))
sketch10.addConstraint(Sketcher.Constraint("Vertical", 13))
sketch10.addConstraint(Sketcher.Constraint("Vertical", 16))
sketch10.addConstraint(Sketcher.Constraint("Horizontal", 17))
sketch10.addConstraint(Sketcher.Constraint("Horizontal", 18))
sketch10.addConstraint(Sketcher.Constraint("Vertical", 19))
sketch10.addConstraint(Sketcher.Constraint("Horizontal", 20))
sketch10.addConstraint(Sketcher.Constraint("Vertical", 21))
sketch10.addConstraint(Sketcher.Constraint("Vertical", 24))
sketch10.addConstraint(Sketcher.Constraint("Horizontal", 25))
sketch10.addConstraint(Sketcher.Constraint("Vertical", 26))
sketch10.addConstraint(Sketcher.Constraint("Vertical", 27))
sketch10.addConstraint(Sketcher.Constraint("Horizontal", 28))
sketch10.addConstraint(Sketcher.Constraint("Vertical", 29))
sketch10.addConstraint(Sketcher.Constraint("Horizontal", 30))
sketch10.addConstraint(Sketcher.Constraint("Vertical", 31))
sketch10.addConstraint(Sketcher.Constraint("Vertical", 34))
sketch10.addConstraint(Sketcher.Constraint("Horizontal", 35))
sketch10.addConstraint(Sketcher.Constraint("Symmetric", 0, 2, 9, 2, -1))
sketch10.addConstraint(Sketcher.Constraint("Symmetric", 7, 2, 11, 2, -1))
sketch10.addConstraint(Sketcher.Constraint("Symmetric", 5, 2, 13, 2, -1))
sketch10.addConstraint(Sketcher.Constraint("Symmetric", 4, 2, 14, 2, -1))
sketch10.addConstraint(Sketcher.Constraint("Symmetric", 3, 2, 15, 2, -1))
sketch10.addConstraint(Sketcher.Constraint("Symmetric", 18, 2, 27, 2, -1))
sketch10.addConstraint(Sketcher.Constraint("Symmetric", 25, 2, 29, 2, -1))
sketch10.addConstraint(Sketcher.Constraint("Symmetric", 23, 2, 31, 2, -1))
sketch10.addConstraint(Sketcher.Constraint("Symmetric", 22, 2, 32, 2, -1))
sketch10.addConstraint(Sketcher.Constraint("Symmetric", 21, 2, 33, 2, -1))
sketch10.addConstraint(Sketcher.Constraint("Parallel", 4, 14))
sketch10.addConstraint(Sketcher.Constraint("Parallel", 14, 22))
sketch10.addConstraint(Sketcher.Constraint("Parallel", 15, 23))
sketch10.addConstraint(Sketcher.Constraint("Horizontal", 3, 2, 5, 2))
sketch10.addConstraint(Sketcher.Constraint("Horizontal", 2, 2, 6, 2))
sketch10.addConstraint(Sketcher.Constraint("Horizontal", 12, 2, 16, 2))
sketch10.addConstraint(Sketcher.Constraint("Horizontal", 8, 2, 18, 2))
sketch10.addConstraint(Sketcher.Constraint("Horizontal", 7, 2, 19, 2))
sketch10.addConstraint(Sketcher.Constraint("Horizontal", 5, 2, 21, 2))
sketch10.addConstraint(Sketcher.Constraint("Horizontal", 4, 2, 22, 2))
sketch10.addConstraint(Sketcher.Constraint("Horizontal", 21, 2, 23, 2))
sketch10.addConstraint(Sketcher.Constraint("Horizontal", 20, 2, 24, 2))
sketch10.addConstraint(Sketcher.Constraint("Horizontal", 30, 2, 34, 2))
sketch10.addConstraint(Sketcher.Constraint("Equal", 2, 7))
sketch10.addConstraint(Sketcher.Constraint("Equal", 10, 18))
sketch10.addConstraint(Sketcher.Constraint("Equal", 17, 20))
sketch10.addConstraint(Sketcher.Constraint("Equal", 28, 1))
sketch10.addConstraint(Sketcher.Constraint("DistanceX", 0, 1, 0, 2, Q("15 mm")))
sketch10.addConstraint(Sketcher.Constraint("DistanceY", 9, 2, 0, 2, Q("50 mm")))
sketch10.addConstraint(Sketcher.Constraint("DistanceX", 29, 2, 11, 2, Q("66.7 mm")))
sketch10.addConstraint(Sketcher.Constraint("Angle", 4, Q("-149.9992 deg")))
sketch10.addConstraint(Sketcher.Constraint("DistanceX", 5, 2, 3, 2, Q("7.45 mm")))
sketch10.addConstraint(Sketcher.Constraint("DistanceX", 18, 2, -1, 1, Q("25 mm")))
sketch10.addConstraint(Sketcher.Constraint("DistanceY", 3, 2, 3, 1, Q("9.6506 mm")))
pad5 = body.newObject("PartDesign::Pad", "Pad004")
pad5.Profile = sketch10
pad5.Length = 3.1

# Sketch on XY plane
sketch11 = body.newObject("Sketcher::SketchObject", "Sketch010")
sketch11.AttachmentSupport = (doc.getObject("XY_Plane"), [""])
sketch11.MapMode = "FlatFace"
sketch11.AttachmentOffset = App.Placement(Vector(0, 0, -118.9), App.Rotation())
add_polygon(sketch11, [(26.7, 25), (41.7, 25), (41.7, 40), (26.7, 40)])  # lines 0-3
sketch11.addGeometry(Part.Circle(Vector(34.2, 32.5, 0), Vector(0, 0, 1), 2.15), False)  # 4
add_polygon(sketch11, [(41.7, -40), (41.7, -25), (26.7, -25), (26.7, -40)])  # lines 5-8
sketch11.addGeometry(Part.Circle(Vector(34.2, -32.5, 0), Vector(0, 0, 1), 2.15), False)  # 9
add_polygon(sketch11, [(-40, 25), (-25, 25), (-25, 40), (-40, 40)])  # lines 10-13
sketch11.addGeometry(Part.Circle(Vector(-32.5, 32.5, 0), Vector(0, 0, 1), 2.15), False)  # 14
add_polygon(sketch11, [(-25, -40), (-25, -25), (-40, -25), (-40, -40)])  # lines 15-18
sketch11.addGeometry(Part.Circle(Vector(-32.5, -32.5, 0), Vector(0, 0, 1), 2.15), False)  # 19
sketch11.addConstraint(Sketcher.Constraint("Horizontal", 0))
sketch11.addConstraint(Sketcher.Constraint("Vertical", 1))
sketch11.addConstraint(Sketcher.Constraint("Horizontal", 2))
sketch11.addConstraint(Sketcher.Constraint("Vertical", 3))
sketch11.addConstraint(Sketcher.Constraint("Vertical", 5))
sketch11.addConstraint(Sketcher.Constraint("Horizontal", 6))
sketch11.addConstraint(Sketcher.Constraint("Vertical", 7))
sketch11.addConstraint(Sketcher.Constraint("Horizontal", 8))
sketch11.addConstraint(Sketcher.Constraint("Horizontal", 10))
sketch11.addConstraint(Sketcher.Constraint("Vertical", 11))
sketch11.addConstraint(Sketcher.Constraint("Horizontal", 12))
sketch11.addConstraint(Sketcher.Constraint("Vertical", 13))
sketch11.addConstraint(Sketcher.Constraint("Vertical", 15))
sketch11.addConstraint(Sketcher.Constraint("Horizontal", 16))
sketch11.addConstraint(Sketcher.Constraint("Vertical", 17))
sketch11.addConstraint(Sketcher.Constraint("Horizontal", 18))
sketch11.addConstraint(Sketcher.Constraint("Equal", 4, 9))
sketch11.addConstraint(Sketcher.Constraint("Equal", 9, 14))
sketch11.addConstraint(Sketcher.Constraint("Equal", 14, 19))
sketch11.addConstraint(Sketcher.Constraint("Symmetric", 4, 3, 9, 3, -1))
sketch11.addConstraint(Sketcher.Constraint("Symmetric", 14, 3, 19, 3, -1))
sketch11.addConstraint(Sketcher.Constraint("Symmetric", 0, 2, 5, 2, -1))
sketch11.addConstraint(Sketcher.Constraint("Symmetric", 2, 2, 7, 2, -1))
sketch11.addConstraint(Sketcher.Constraint("Symmetric", 10, 2, 15, 2, -1))
sketch11.addConstraint(Sketcher.Constraint("Symmetric", 12, 2, 17, 2, -1))
sketch11.addConstraint(Sketcher.Constraint("Horizontal", 4, 3, 14, 3))
sketch11.addConstraint(Sketcher.Constraint("Horizontal", 3, 2, 10, 2))
sketch11.addConstraint(Sketcher.Constraint("Horizontal", 2, 2, 11, 2))
sketch11.addConstraint(Sketcher.Constraint("Equal", 8, 10))
sketch11.addConstraint(Sketcher.Constraint("Equal", 18, 1))
sketch11.addConstraint(Sketcher.Constraint("Diameter", 4, Q("4.3 mm")))
sketch11.addConstraint(Sketcher.Constraint("DistanceX", 0, 1, 0, 2, Q("15 mm")))
sketch11.addConstraint(Sketcher.Constraint("DistanceY", 9, 3, 4, 3, Q("65 mm")))
sketch11.addConstraint(Sketcher.Constraint("DistanceY", 5, 2, 0, 2, Q("50 mm")))
sketch11.addConstraint(Sketcher.Constraint("DistanceX", 14, 3, 4, 3, Q("66.7 mm")))
sketch11.addConstraint(Sketcher.Constraint("DistanceX", 12, 2, 2, 2, Q("66.7 mm")))
sketch11.addConstraint(Sketcher.Constraint("DistanceX", 10, 2, -1, 1, Q("25 mm")))
sketch11.addConstraint(Sketcher.Constraint("DistanceX", -1, 1, 4, 3, Q("34.2 mm")))
pad6 = body.newObject("PartDesign::Pad", "Pad005")
pad6.Profile = sketch11
pad6.Length = 1

doc.recompute()
